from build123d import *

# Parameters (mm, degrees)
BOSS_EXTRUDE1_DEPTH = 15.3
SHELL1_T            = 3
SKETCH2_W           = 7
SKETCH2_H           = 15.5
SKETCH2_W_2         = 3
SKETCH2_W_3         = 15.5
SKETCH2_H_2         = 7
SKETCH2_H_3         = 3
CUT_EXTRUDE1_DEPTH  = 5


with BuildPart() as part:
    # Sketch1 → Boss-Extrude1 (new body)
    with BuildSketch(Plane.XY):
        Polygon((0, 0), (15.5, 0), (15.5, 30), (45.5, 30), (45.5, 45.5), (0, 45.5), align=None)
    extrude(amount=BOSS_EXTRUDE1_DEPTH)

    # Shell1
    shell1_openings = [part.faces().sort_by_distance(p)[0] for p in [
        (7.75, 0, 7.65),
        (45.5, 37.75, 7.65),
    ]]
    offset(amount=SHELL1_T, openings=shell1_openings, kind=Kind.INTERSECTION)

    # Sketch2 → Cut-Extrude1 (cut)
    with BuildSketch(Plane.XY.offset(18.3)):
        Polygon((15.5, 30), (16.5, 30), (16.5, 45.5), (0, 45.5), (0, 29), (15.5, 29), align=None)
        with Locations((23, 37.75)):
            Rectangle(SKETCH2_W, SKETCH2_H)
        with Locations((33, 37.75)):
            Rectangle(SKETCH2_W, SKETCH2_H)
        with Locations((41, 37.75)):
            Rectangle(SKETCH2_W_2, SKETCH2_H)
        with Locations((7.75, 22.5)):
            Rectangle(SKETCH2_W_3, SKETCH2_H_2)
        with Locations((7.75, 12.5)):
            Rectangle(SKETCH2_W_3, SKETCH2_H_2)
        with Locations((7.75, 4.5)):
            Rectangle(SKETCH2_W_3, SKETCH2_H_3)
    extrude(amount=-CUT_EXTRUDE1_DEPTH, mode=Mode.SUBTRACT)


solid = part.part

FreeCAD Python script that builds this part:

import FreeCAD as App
import Part
import Sketcher
Q = App.Units.Quantity


def faces_at(feature, points):
    """Names of the faces that lie closest to the given points."""
    faces = feature.Shape.Faces
    near = lambda p: min(range(len(faces)), key=lambda i: faces[i].distToShape(Part.Vertex(*p))[0])
    return sorted({f"Face{near(p) + 1}" for p in points})

doc = App.newDocument("Part")
body = doc.addObject("PartDesign::Body", "Body")

sketch1 = body.newObject("Sketcher::SketchObject", "Sketch")
sketch1.AttachmentSupport = (doc.getObject("XY_Plane"), [""])
sketch1.MapMode = "FlatFace"
sketch1.addGeometry(Part.LineSegment(App.Vector(0, 0, 0), App.Vector(16, 0, 0)), False)
sketch1.addGeometry(Part.LineSegment(App.Vector(16, 0, 0), App.Vector(16, 30, 0)), False)
sketch1.addGeometry(Part.LineSegment(App.Vector(16, 30, 0), App.Vector(46, 30, 0)), False)
sketch1.addGeometry(Part.LineSegment(App.Vector(46, 30, 0), App.Vector(46, 46, 0)), False)
sketch1.addGeometry(Part.LineSegment(App.Vector(46, 46, 0), App.Vector(0, 46, 0)), False)
sketch1.addGeometry(Part.LineSegment(App.Vector(0, 46, 0), App.Vector(0, 0, 0)), False)
sketch1.addConstraint(Sketcher.Constraint("Coincident", 0, 2, 1, 1))
sketch1.addConstraint(Sketcher.Constraint("Coincident", 1, 2, 2, 1))
sketch1.addConstraint(Sketcher.Constraint("Coincident", 2, 2, 3, 1))
sketch1.addConstraint(Sketcher.Constraint("Coincident", 3, 2, 4, 1))
sketch1.addConstraint(Sketcher.Constraint("Coincident", 4, 2, 5, 1))
sketch1.addConstraint(Sketcher.Constraint("Coincident", 5, 2, 0, 1))
sketch1.addConstraint(Sketcher.Constraint("Horizontal", 0))
sketch1.addConstraint(Sketcher.Constraint("Vertical", 1))
sketch1.addConstraint(Sketcher.Constraint("Horizontal", 2))
sketch1.addConstraint(Sketcher.Constraint("Vertical", 3))
sketch1.addConstraint(Sketcher.Constraint("Horizontal", 4))
sketch1.addConstraint(Sketcher.Constraint("Vertical", 5))
sketch1.addConstraint(Sketcher.Constraint("Coincident", 5, 2, -1, 1))
sketch1.addConstraint(Sketcher.Constraint("Equal", 2, 1))
sketch1.addConstraint(Sketcher.Constraint("Equal", 0, 3))
sketch1.addConstraint(Sketcher.Constraint("DistanceX", 2, 1, 2, 2, Q("30 mm")))
sketch1.addConstraint(Sketcher.Constraint("DistanceX", 0, 1, 0, 2, Q("15.5 mm")))
pad1 = body.newObject("PartDesign::Pad", "Pad")
pad1.Profile = sketch1
pad1.Length = 15.3
doc.recompute()

thickness = body.newObject("PartDesign::Thickness", "Thickness")
thickness.Base = (pad1, faces_at(pad1, [(7.75, 0, 7.65), (45.5, 37.75, 7.65)]))
thickness.Value = 3
thickness.Reversed = False
thickness.Join = "Intersection"

sketch2 = body.newObject("Sketcher::SketchObject", "Sketch001")
sketch2.AttachmentSupport = (doc.getObject("XY_Plane"), [""])
sketch2.MapMode = "FlatFace"
sketch2.AttachmentOffset = App.Placement(App.Vector(0, 0, 18.3), App.Rotation())
sketch2.addGeometry(Part.LineSegment(App.Vector(15.5, 30, 0), App.Vector(16.5, 30, 0)), False)
sketch2.addGeometry(Part.LineSegment(App.Vector(16.5, 30, 0), App.Vector(16.5, 45.5, 0)), False)
sketch2.addGeometry(Part.LineSegment(App.Vector(16.5, 45.5, 0), App.Vector(0, 45.5, 0)), False)
sketch2.addGeometry(Part.LineSegment(App.Vector(0, 45.5, 0), App.Vector(0, 29, 0)), False)
sketch2.addGeometry(Part.LineSegment(App.Vector(0, 29, 0), App.Vector(15.5, 29, 0)), False)
sketch2.addGeometry(Part.LineSegment(App.Vector(15.5, 29, 0), App.Vector(15.5, 30, 0)), False)
sketch2.addGeometry(Part.LineSegment(App.Vector(19.5, 45.5, 0), App.Vector(19.5, 30, 0)), False)
sketch2.addGeometry(Part.LineSegment(App.Vector(19.5, 30, 0), App.Vector(26.5, 30, 0)), False)
sketch2.addGeometry(Part.LineSegment(App.Vector(26.5, 30, 0), App.Vector(26.5, 45.5, 0)), False)
sketch2.addGeometry(Part.LineSegment(App.Vector(26.5, 45.5, 0), App.Vector(19.5, 45.5, 0)), False)
sketch2.addGeometry(Part.LineSegment(App.Vector(29.5, 45.5, 0), App.Vector(29.5, 30, 0)), False)
sketch2.addGeometry(Part.LineSegment(App.Vector(29.5, 30, 0), App.Vector(36.5, 30, 0)), False)
sketch2.addGeometry(Part.LineSegment(App.Vector(36.5, 30, 0), App.Vector(36.5, 45.5, 0)), False)
sketch2.addGeometry(Part.LineSegment(App.Vector(36.5, 45.5, 0), App.Vector(29.5, 45.5, 0)), False)
sketch2.addGeometry(Part.LineSegment(App.Vector(39.5, 45.5, 0), App.Vector(39.5, 30, 0)), False)
sketch2.addGeometry(Part.LineSegment(App.Vector(39.5, 30, 0), App.Vector(42.5, 30, 0)), False)
sketch2.addGeometry(Part.LineSegment(App.Vector(42.5, 30, 0), App.Vector(42.5, 45.5, 0)), False)
sketch2.addGeometry(Part.LineSegment(App.Vector(42.5, 45.5, 0), App.Vector(39.5, 45.5, 0)), False)
sketch2.addGeometry(Part.LineSegment(App.Vector(0, 26, 0), App.Vector(0, 19, 0)), False)
sketch2.addGeometry(Part.LineSegment(App.Vector(0, 19, 0), App.Vector(15.5, 19, 0)), False)
sketch2.addGeometry(Part.LineSegment(App.Vector(15.5, 19, 0), App.Vector(15.5, 26, 0)), False)
sketch2.addGeometry(Part.LineSegment(App.Vector(15.5, 26, 0), App.Vector(0, 26, 0)), False)
sketch2.addGeometry(Part.LineSegment(App.Vector(0, 16, 0), App.Vector(0, 9, 0)), False)
sketch2.addGeometry(Part.LineSegment(App.Vector(0, 9, 0), App.Vector(15.5, 9, 0)), False)
sketch2.addGeometry(Part.LineSegment(App.Vector(15.5, 9, 0), App.Vector(15.5, 16, 0)), False)
sketch2.addGeometry(Part.LineSegment(App.Vector(15.5, 16, 0), App.Vector(0, 16, 0)), False)
sketch2.addGeometry(Part.LineSegment(App.Vector(0, 6, 0), App.Vector(0, 3, 0)), False)
sketch2.addGeometry(Part.LineSegment(App.Vector(0, 3, 0), App.Vector(15.5, 3, 0)), False)
sketch2.addGeometry(Part.LineSegment(App.Vector(15.5, 3, 0), App.Vector(15.5, 6, 0)), False)
sketch2.addGeometry(Part.LineSegment(App.Vector(15.5, 6, 0), App.Vector(0, 6, 0)), False)
sketch2.addConstraint(Sketcher.Constraint("Coincident", 0, 2, 1, 1))
sketch2.addConstraint(Sketcher.Constraint("Coincident", 1, 2, 2, 1))
sketch2.addConstraint(Sketcher.Constraint("Coincident", 2, 2, 3, 1))
sketch2.addConstraint(Sketcher.Constraint("Coincident", 3, 2, 4, 1))
sketch2.addConstraint(Sketcher.Constraint("Coincident", 4, 2, 5, 1))
sketch2.addConstraint(Sketcher.Constraint("Coincident", 5, 2, 0, 1))
sketch2.addConstraint(Sketcher.Constraint("Coincident", 6, 2, 7, 1))
sketch2.addConstraint(Sketcher.Constraint("Coincident", 7, 2, 8, 1))
sketch2.addConstraint(Sketcher.Constraint("Coincident", 8, 2, 9, 1))
sketch2.addConstraint(Sketcher.Constraint("Coincident", 9, 2, 6, 1))
sketch2.addConstraint(Sketcher.Constraint("Coincident", 10, 2, 11, 1))
sketch2.addConstraint(Sketcher.Constraint("Coincident", 11, 2, 12, 1))
sketch2.addConstraint(Sketcher.Constraint("Coincident", 12, 2, 13, 1))
sketch2.addConstraint(Sketcher.Constraint("Coincident", 13, 2, 10, 1))
sketch2.addConstraint(Sketcher.Constraint("Coincident", 14, 2, 15, 1))
sketch2.addConstraint(Sketcher.Constraint("Coincident", 15, 2, 16, 1))
sketch2.addConstraint(Sketcher.Constraint("Coincident", 16, 2, 17, 1))
sketch2.addConstraint(Sketcher.Constraint("Coincident", 17, 2, 14, 1))
sketch2.addConstraint(Sketcher.Constraint("Coincident", 18, 2, 19, 1))
sketch2.addConstraint(Sketcher.Constraint("Coincident", 19, 2, 20, 1))
sketch2.addConstraint(Sketcher.Constraint("Coincident", 20, 2, 21, 1))
sketch2.addConstraint(Sketcher.Constraint("Coincident", 21, 2, 18, 1))
sketch2.addConstraint(Sketcher.Constraint("Coincident", 22, 2, 23, 1))
sketch2.addConstraint(Sketcher.Constraint("Coincident", 23, 2, 24, 1))
sketch2.addConstraint(Sketcher.Constraint("Coincident", 24, 2, 25, 1))
sketch2.addConstraint(Sketcher.Constraint("Coincident", 25, 2, 22, 1))
sketch2.addConstraint(Sketcher.Constraint("Coincident", 26, 2, 27, 1))
sketch2.addConstraint(Sketcher.Constraint("Coincident", 27, 2, 28, 1))
sketch2.addConstraint(Sketcher.Constraint("Coincident", 28, 2, 29, 1))
sketch2.addConstraint(Sketcher.Constraint("Coincident", 29, 2, 26, 1))
sketch2.addConstraint(Sketcher.Constraint("Horizontal", 0))
sketch2.addConstraint(Sketcher.Constraint("Vertical", 1))
sketch2.addConstraint(Sketcher.Constraint("Horizontal", 2))
sketch2.addConstraint(Sketcher.Constraint("Vertical", 3))
sketch2.addConstraint(Sketcher.Constraint("Horizontal", 4))
sketch2.addConstraint(Sketcher.Constraint("Vertical", 5))
sketch2.addConstraint(Sketcher.Constraint("Vertical", 6))
sketch2.addConstraint(Sketcher.Constraint("Horizontal", 7))
sketch2.addConstraint(Sketcher.Constraint("Vertical", 8))
sketch2.addConstraint(Sketcher.Constraint("Horizontal", 9))
sketch2.addConstraint(Sketcher.Constraint("Vertical", 10))
sketch2.addConstraint(Sketcher.Constraint("Horizontal", 11))
sketch2.addConstraint(Sketcher.Constraint("Vertical", 12))
sketch2.addConstraint(Sketcher.Constraint("Horizontal", 13))
sketch2.addConstraint(Sketcher.Constraint("Vertical", 14))
sketch2.addConstraint(Sketcher.Constraint("Horizontal", 15))
sketch2.addConstraint(Sketcher.Constraint("Vertical", 16))
sketch2.addConstraint(Sketcher.Constraint("Horizontal", 17))
sketch2.addConstraint(Sketcher.Constraint("Vertical", 18))
sketch2.addConstraint(Sketcher.Constraint("Horizontal", 19))
sketch2.addConstraint(Sketcher.Constraint("Vertical", 20))
sketch2.addConstraint(Sketcher.Constraint("Horizontal", 21))
sketch2.addConstraint(Sketcher.Constraint("Vertical", 22))
sketch2.addConstraint(Sketcher.Constraint("Horizontal", 23))
sketch2.addConstraint(Sketcher.Constraint("Vertical", 24))
sketch2.addConstraint(Sketcher.Constraint("Horizontal", 25))
sketch2.addConstraint(Sketcher.Constraint("Vertical", 26))
sketch2.addConstraint(Sketcher.Constraint("Horizontal", 27))
sketch2.addConstraint(Sketcher.Constraint("Vertical", 28))
sketch2.addConstraint(Sketcher.Constraint("Horizontal", 29))
sketch2.addConstraint(Sketcher.Constraint("PointOnObject", 2, 2, -2))
sketch2.addConstraint(Sketcher.Constraint("PointOnObject", 18, 2, -2))
sketch2.addConstraint(Sketcher.Constraint("PointOnObject", 22, 2, -2))
sketch2.addConstraint(Sketcher.Constraint("PointOnObject", 26, 2, -2))
sketch2.addConstraint(Sketcher.Constraint("Horizontal", 5, 2, 6, 2))
sketch2.addConstraint(Sketcher.Constraint("Horizontal", 2, 2, 8, 2))
sketch2.addConstraint(Sketcher.Constraint("Horizontal", 7, 2, 10, 2))
sketch2.addConstraint(Sketcher.Constraint("Horizontal", 9, 2, 12, 2))
sketch2.addConstraint(Sketcher.Constraint("Horizontal", 11, 2, 14, 2))
sketch2.addConstraint(Sketcher.Constraint("Horizontal", 13, 2, 16, 2))
sketch2.addConstraint(Sketcher.Constraint("Vertical", 5, 2, 19, 2))
sketch2.addConstraint(Sketcher.Constraint("Vertical", 20, 2, 23, 2))
sketch2.addConstraint(Sketcher.Constraint("Vertical", 24, 2, 27, 2))
sketch2.addConstraint(Sketcher.Constraint("Equal", 9, 11))
sketch2.addConstraint(Sketcher.Constraint("Equal", 29, 1))
sketch2.addConstraint(Sketcher.Constraint("Equal", 2, 3))
sketch2.addConstraint(Sketcher.Constraint("Equal", 13, 18))
sketch2.addConstraint(Sketcher.Constraint("Equal", 20, 22))
sketch2.addConstraint(Sketcher.Constraint("Equal", 17, 26))
sketch2.addConstraint(Sketcher.Constraint("DistanceX", 0, 1, 0, 2, Q("1 mm")))
sketch2.addConstraint(Sketcher.Constraint("DistanceX", 7, 1, 7, 2, Q("7 mm")))
sketch2.addConstraint(Sketcher.Constraint("DistanceX", 15, 1, 15, 2, Q("3 mm")))
sketch2.addConstraint(Sketcher.Constraint("DistanceX", 2, 2, 2, 1, Q("16.5 mm")))
sketch2.addConstraint(Sketcher.Constraint("DistanceY", -1, 1, 0, 2, Q("30 mm")))
sketch2.addConstraint(Sketcher.Constraint("DistanceY", -1, 1, 18, 2, Q("19 mm")))
sketch2.addConstraint(Sketcher.Constraint("DistanceY", -1, 1, 22, 2, Q("9 mm")))
sketch2.addConstraint(Sketcher.Constraint("DistanceY", -1, 1, 26, 2, Q("3 mm")))
sketch2.addConstraint(Sketcher.Constraint("DistanceX", 0, 2, 6, 2, Q("3 mm")))
sketch2.addConstraint(Sketcher.Constraint("DistanceX", 7, 2, 10, 2, Q("3 mm")))
sketch2.addConstraint(Sketcher.Constraint("DistanceX", 11, 2, 14, 2, Q("3 mm")))
pocket1 = body.newObject("PartDesign::Pocket", "Pocket")
pocket1.Profile = sketch2
pocket1.Length = 5

doc.recompute()
